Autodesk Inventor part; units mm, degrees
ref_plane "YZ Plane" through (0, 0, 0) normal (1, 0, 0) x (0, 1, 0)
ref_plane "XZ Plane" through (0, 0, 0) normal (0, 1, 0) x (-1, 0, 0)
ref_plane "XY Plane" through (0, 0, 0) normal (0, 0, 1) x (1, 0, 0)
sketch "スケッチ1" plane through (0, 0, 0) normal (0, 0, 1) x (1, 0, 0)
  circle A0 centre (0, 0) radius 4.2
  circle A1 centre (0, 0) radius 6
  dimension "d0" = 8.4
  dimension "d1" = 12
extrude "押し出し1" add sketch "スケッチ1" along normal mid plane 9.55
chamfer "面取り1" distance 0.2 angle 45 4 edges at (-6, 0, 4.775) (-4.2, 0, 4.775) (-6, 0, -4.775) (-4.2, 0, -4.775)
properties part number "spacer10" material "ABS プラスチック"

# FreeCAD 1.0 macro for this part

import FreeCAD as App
import Part
import Sketcher
Q = App.Units.Quantity


def edges_at(feature, points):
    """Names of the edges that pass closest to the given points."""
    edges = feature.Shape.Edges
    near = lambda p: min(range(len(edges)), key=lambda i: edges[i].distToShape(Part.Vertex(*p))[0])
    return sorted({f"Edge{near(p) + 1}" for p in points})

doc = App.newDocument("Part")
body = doc.addObject("PartDesign::Body", "Body")

sketch1 = body.newObject("Sketcher::SketchObject", "Sketch")
sketch1.AttachmentSupport = (doc.getObject("XY_Plane"), [""])
sketch1.MapMode = "FlatFace"
sketch1.addGeometry(Part.Circle(App.Vector(0, 0, 0), App.Vector(0, 0, 1), 6), False)
sketch1.addGeometry(Part.Circle(App.Vector(0, 0, 0), App.Vector(0, 0, 1), 4.2), False)
sketch1.addConstraint(Sketcher.Constraint("Coincident", 0, 3, -1, 1))
sketch1.addConstraint(Sketcher.Constraint("Coincident", 1, 3, -1, 1))
sketch1.addConstraint(Sketcher.Constraint("Diameter", 0, Q("12 mm")))
sketch1.addConstraint(Sketcher.Constraint("Diameter", 1, Q("8.4 mm")))
pad1 = body.newObject("PartDesign::Pad", "Pad")
pad1.Profile = sketch1
pad1.Length = 9.55
pad1.Midplane = True
doc.recompute()

chamfer = body.newObject("PartDesign::Chamfer", "Chamfer")
chamfer.Base = (pad1, edges_at(pad1, [
    (-6, 0, 4.775),
    (-4.2, 0, 4.775),
    (-6, 0, -4.775),
    (-4.2, 0, -4.775),
]))
chamfer.Size = 0.2

doc.recompute()
